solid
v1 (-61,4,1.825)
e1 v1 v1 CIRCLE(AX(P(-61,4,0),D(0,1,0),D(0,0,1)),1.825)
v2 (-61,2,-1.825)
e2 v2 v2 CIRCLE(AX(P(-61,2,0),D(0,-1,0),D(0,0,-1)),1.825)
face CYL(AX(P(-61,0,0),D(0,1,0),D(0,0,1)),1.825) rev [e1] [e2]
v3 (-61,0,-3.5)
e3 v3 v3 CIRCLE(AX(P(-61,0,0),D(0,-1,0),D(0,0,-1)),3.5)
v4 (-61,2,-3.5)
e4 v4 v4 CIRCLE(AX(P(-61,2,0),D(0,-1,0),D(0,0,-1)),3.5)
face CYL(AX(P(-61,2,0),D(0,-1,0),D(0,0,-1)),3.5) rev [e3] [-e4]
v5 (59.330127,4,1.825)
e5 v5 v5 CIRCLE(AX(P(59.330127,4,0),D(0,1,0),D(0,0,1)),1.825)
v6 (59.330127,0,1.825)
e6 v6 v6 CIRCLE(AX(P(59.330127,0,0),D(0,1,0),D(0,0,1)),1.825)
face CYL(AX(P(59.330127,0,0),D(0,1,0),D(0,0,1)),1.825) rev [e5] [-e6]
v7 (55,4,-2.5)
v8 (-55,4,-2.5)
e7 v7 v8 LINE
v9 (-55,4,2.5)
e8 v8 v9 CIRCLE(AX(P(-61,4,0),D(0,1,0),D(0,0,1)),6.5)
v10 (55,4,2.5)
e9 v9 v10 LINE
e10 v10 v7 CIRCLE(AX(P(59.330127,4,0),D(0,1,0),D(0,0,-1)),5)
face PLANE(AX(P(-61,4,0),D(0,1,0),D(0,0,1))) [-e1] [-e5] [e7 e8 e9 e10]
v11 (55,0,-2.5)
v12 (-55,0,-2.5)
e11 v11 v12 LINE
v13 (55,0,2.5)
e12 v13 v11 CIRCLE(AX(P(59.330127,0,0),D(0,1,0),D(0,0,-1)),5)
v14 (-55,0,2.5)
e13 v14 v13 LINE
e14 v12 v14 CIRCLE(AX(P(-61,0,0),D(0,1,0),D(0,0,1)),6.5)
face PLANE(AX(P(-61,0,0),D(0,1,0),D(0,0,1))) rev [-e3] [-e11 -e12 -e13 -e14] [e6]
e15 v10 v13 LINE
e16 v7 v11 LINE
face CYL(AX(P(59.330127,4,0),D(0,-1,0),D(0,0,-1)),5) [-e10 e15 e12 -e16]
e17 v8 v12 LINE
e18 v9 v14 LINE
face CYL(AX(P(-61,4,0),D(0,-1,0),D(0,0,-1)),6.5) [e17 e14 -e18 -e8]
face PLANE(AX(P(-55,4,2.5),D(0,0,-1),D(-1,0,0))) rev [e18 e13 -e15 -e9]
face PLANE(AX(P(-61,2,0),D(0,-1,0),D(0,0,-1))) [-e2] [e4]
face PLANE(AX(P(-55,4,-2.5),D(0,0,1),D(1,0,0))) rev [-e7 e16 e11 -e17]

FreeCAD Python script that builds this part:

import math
import FreeCAD as App
import Part
import Sketcher
from FreeCAD import Vector

doc = App.newDocument("Part")
body = doc.addObject("PartDesign::Body", "Body")

# Sketch on XZ plane
sketch1 = body.newObject("Sketcher::SketchObject", "Sketch")
sketch1.AttachmentSupport = (doc.getObject("XZ_Plane"), [""])
sketch1.MapMode = "FlatFace"
sketch1.addGeometry([
    Part.LineSegment(Vector(55, -2, 0), Vector(-55, -2, 0)),
    Part.ArcOfCircle(Part.Circle(Vector(-61, 0, 0), Vector(0, 0, 1), 6), math.radians(23), math.radians(337)),
    Part.LineSegment(Vector(-55, 2, 0), Vector(55, 2, 0)),
    Part.ArcOfCircle(Part.Circle(Vector(59, 0, 0), Vector(0, 0, 1), 5), math.radians(-150), math.radians(150)),
], False)
sketch1.addConstraint([
    Sketcher.Constraint("Coincident", 0, 2, 1, 2),
    Sketcher.Constraint("Coincident", 1, 1, 2, 1),
    Sketcher.Constraint("Coincident", 2, 2, 3, 2),
    Sketcher.Constraint("Coincident", 3, 1, 0, 1),
    Sketcher.Constraint("Horizontal", 0),
    Sketcher.Constraint("Horizontal", 2),
    Sketcher.Constraint("Symmetric", 0, 2, 2, 2, -1, 1),
    Sketcher.Constraint("PointOnObject", 1, 3, -1),
    Sketcher.Constraint("PointOnObject", 3, 3, -1),
    Sketcher.Constraint("Radius", 3, 5.0),
    Sketcher.Constraint("Radius", 1, 6.5),
    Sketcher.Constraint("DistanceX", 0, 2, 0, 1, 110.0),
    Sketcher.Constraint("DistanceX", 1, 3, -1, 1, 61.0),
])
pad1 = body.newObject("PartDesign::Pad", "Pad")
pad1.Profile = sketch1
pad1.Length = 4
pad1.Reversed = True

# Sketch on XZ plane
sketch2 = body.newObject("Sketcher::SketchObject", "Sketch001")
sketch2.AttachmentSupport = (doc.getObject("XZ_Plane"), [""])
sketch2.MapMode = "FlatFace"
sketch2.addGeometry(Part.Circle(Vector(-61, 0, 0), Vector(0, 0, 1), 3.5), False)
sketch2.addConstraint([
    Sketcher.Constraint("PointOnObject", 0, 3, -1),
    Sketcher.Constraint("Diameter", 0, 7.0),
    Sketcher.Constraint("DistanceX", 0, 3, -1, 1, 61.0),
])
pocket1 = body.newObject("PartDesign::Pocket", "Pocket")
pocket1.Profile = sketch2
pocket1.Length = 2

# Sketch on XZ plane
sketch3 = body.newObject("Sketcher::SketchObject", "Sketch002")
sketch3.AttachmentSupport = (doc.getObject("XZ_Plane"), [""])
sketch3.MapMode = "FlatFace"
sketch3.AttachmentOffset = App.Placement(Vector(0, 0, -4), App.Rotation())
sketch3.addGeometry([
    Part.Circle(Vector(-61, 0, 0), Vector(0, 0, 1), 1.8),
    Part.Circle(Vector(59.3, 0, 0), Vector(0, 0, 1), 1.8),
], False)
sketch3.addConstraint([
    Sketcher.Constraint("Equal", 0, 1),
    Sketcher.Constraint("PointOnObject", 0, 3, -1),
    Sketcher.Constraint("PointOnObject", 1, 3, -1),
    Sketcher.Constraint("Diameter", 0, 3.65),
    Sketcher.Constraint("DistanceX", 0, 3, -1, 1, 61.0),
    Sketcher.Constraint("DistanceX", -1, 1, 1, 3, 59.330127),
])
pocket2 = body.newObject("PartDesign::Pocket", "Pocket001")
pocket2.Profile = sketch3
pocket2.Type = "ThroughAll"
pocket2.Reversed = True

doc.recompute()
